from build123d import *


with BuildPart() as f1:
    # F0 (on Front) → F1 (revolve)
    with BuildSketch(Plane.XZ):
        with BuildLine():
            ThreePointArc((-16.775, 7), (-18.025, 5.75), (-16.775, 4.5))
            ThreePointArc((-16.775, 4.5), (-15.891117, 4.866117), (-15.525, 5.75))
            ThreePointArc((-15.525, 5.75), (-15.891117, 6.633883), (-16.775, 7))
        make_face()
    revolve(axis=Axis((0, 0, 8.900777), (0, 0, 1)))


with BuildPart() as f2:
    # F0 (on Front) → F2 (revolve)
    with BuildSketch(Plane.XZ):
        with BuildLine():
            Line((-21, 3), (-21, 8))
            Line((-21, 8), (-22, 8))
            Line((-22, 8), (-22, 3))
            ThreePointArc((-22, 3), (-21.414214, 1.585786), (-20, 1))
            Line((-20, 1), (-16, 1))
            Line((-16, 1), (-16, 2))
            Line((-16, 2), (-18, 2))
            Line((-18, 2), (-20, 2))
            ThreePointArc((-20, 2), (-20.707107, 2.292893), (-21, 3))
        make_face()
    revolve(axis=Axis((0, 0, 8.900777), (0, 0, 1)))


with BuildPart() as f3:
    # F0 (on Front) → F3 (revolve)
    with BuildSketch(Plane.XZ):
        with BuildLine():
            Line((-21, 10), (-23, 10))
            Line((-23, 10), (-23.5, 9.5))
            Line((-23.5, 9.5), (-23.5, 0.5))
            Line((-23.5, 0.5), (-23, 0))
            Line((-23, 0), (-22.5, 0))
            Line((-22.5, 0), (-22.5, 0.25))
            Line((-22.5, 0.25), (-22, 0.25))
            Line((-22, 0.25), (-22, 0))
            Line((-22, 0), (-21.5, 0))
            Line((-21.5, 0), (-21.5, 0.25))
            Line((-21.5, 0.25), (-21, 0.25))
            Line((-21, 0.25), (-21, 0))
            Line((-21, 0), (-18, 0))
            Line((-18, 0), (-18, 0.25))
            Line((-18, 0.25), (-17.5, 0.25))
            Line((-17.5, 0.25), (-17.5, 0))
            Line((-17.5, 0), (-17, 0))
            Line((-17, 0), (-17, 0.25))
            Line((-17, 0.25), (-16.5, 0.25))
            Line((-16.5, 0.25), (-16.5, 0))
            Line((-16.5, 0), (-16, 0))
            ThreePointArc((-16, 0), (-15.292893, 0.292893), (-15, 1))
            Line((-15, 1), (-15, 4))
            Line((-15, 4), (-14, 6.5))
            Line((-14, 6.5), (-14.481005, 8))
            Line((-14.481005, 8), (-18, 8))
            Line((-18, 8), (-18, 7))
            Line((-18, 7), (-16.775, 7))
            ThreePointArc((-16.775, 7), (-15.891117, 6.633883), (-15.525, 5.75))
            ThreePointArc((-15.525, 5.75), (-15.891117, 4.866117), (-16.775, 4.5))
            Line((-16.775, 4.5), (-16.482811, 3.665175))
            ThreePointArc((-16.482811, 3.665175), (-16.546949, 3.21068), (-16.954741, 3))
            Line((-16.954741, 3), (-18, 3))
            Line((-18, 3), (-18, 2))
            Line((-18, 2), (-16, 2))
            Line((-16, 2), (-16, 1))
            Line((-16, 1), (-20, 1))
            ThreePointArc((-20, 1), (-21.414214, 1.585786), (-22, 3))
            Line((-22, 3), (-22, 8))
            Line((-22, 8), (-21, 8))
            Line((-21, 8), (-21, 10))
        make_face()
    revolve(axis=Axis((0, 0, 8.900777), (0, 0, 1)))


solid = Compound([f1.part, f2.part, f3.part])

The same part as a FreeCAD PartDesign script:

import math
import FreeCAD as App
import Part
import Sketcher

V = App.Vector
Q = App.Units.Quantity

doc = App.newDocument("Part")
body = doc.addObject("PartDesign::Body", "Body")

# Sketch on XZ plane
sketch1 = body.newObject("Sketcher::SketchObject", "Sketch")
sketch1.AttachmentSupport = (doc.getObject("XZ_Plane"), [""])
sketch1.MapMode = "FlatFace"
sketch1.addGeometry([
    Part.ArcOfCircle(Part.Circle(V(-16.8, 5.8, 0), V(0, 0, 1), 1.2), math.radians(90), math.radians(270)),
    Part.ArcOfCircle(Part.Circle(V(-16.8, 5.8, 0), V(0, 0, 1), 1.3), math.radians(-90), math.radians(0)),
    Part.ArcOfCircle(Part.Circle(V(-16.8, 5.7, 0), V(0, 0, 1), 1.3), math.radians(0), math.radians(90)),
], False)
sketch1.addConstraint([
    Sketcher.Constraint("Tangent", 0, 2, 1, 1),
    Sketcher.Constraint("Coincident", 1, 2, 2, 1),
    Sketcher.Constraint("Tangent", 2, 2, 0, 1),
    Sketcher.Constraint("Equal", 0, 1),
    Sketcher.Constraint("Horizontal", 2, 3, 1, 2),
    Sketcher.Constraint("Vertical", 2, 3, 0, 2),
    Sketcher.Constraint("Vertical", 0, 2, 2, 2),
    Sketcher.Constraint("Radius", 0, Q("1.25 mm")),
    Sketcher.Constraint("DistanceY", -1, 1, 2, 2, Q("7 mm")),
    Sketcher.Constraint("DistanceX", 0, 3, -1, 1, Q("16.775 mm")),
])
revolution = body.newObject("PartDesign::Revolution", "Revolution")
revolution.Profile = sketch1
revolution.ReferenceAxis = (sketch1, ["V_Axis"])
revolution.Angle = 360
body2 = doc.addObject("PartDesign::Body", "Body001")

# Sketch on XZ plane
sketch2 = body2.newObject("Sketcher::SketchObject", "Sketch001")
sketch2.AttachmentSupport = (doc.getObject("XZ_Plane001"), [""])
sketch2.MapMode = "FlatFace"
sketch2.addGeometry([
    Part.LineSegment(V(-21, 3, 0), V(-21, 8, 0)),  # 0
    Part.LineSegment(V(-21, 8, 0), V(-22, 8, 0)),  # 1
    Part.LineSegment(V(-22, 8, 0), V(-22, 3, 0)),  # 2
    Part.ArcOfCircle(Part.Circle(V(-20, 3, 0), V(0, 0, 1), 2), math.radians(180), math.radians(270)),  # 3
    Part.LineSegment(V(-20, 1, 0), V(-16, 1, 0)),  # 4
    Part.LineSegment(V(-16, 1, 0), V(-16, 2, 0)),  # 5
    Part.LineSegment(V(-16, 2, 0), V(-20, 2, 0)),  # 6
    Part.ArcOfCircle(Part.Circle(V(-20, 3, 0), V(0, 0, 1), 1), math.radians(180), math.radians(270)),  # 7
], False)
sketch2.addConstraint([
    Sketcher.Constraint("Coincident", 0, 2, 1, 1),
    Sketcher.Constraint("Coincident", 1, 2, 2, 1),
    Sketcher.Constraint("Tangent", 2, 2, 3, 1),
    Sketcher.Constraint("Tangent", 3, 2, 4, 1),
    Sketcher.Constraint("Coincident", 4, 2, 5, 1),
    Sketcher.Constraint("Coincident", 5, 2, 6, 1),
    Sketcher.Constraint("Tangent", 6, 2, 7, 2),
    Sketcher.Constraint("Tangent", 7, 1, 0, 1),
    Sketcher.Constraint("Vertical", 0),
    Sketcher.Constraint("Horizontal", 1),
    Sketcher.Constraint("Vertical", 2),
    Sketcher.Constraint("Horizontal", 4),
    Sketcher.Constraint("Vertical", 5),
    Sketcher.Constraint("Horizontal", 6),
    Sketcher.Constraint("Coincident", 7, 3, 3, 3),
    Sketcher.Constraint("Radius", 3, Q("1.999999 mm")),
    Sketcher.Constraint("Radius", 7, Q("0.999999 mm")),
    Sketcher.Constraint("DistanceX", 4, 1, 4, 2, Q("4 mm")),
    Sketcher.Constraint("DistanceY", 0, 1, 0, 2, Q("5 mm")),
    Sketcher.Constraint("DistanceX", 3, 3, -1, 1, Q("20.000001 mm")),
    Sketcher.Constraint("DistanceY", -1, 1, 3, 3, Q("2.999999 mm")),
])
revolution2 = body2.newObject("PartDesign::Revolution", "Revolution001")
revolution2.Profile = sketch2
revolution2.ReferenceAxis = (sketch2, ["V_Axis"])
revolution2.Angle = 360
body3 = doc.addObject("PartDesign::Body", "Body002")

# Sketch on XZ plane
sketch3 = body3.newObject("Sketcher::SketchObject", "Sketch002")
sketch3.AttachmentSupport = (doc.getObject("XZ_Plane002"), [""])
sketch3.MapMode = "FlatFace"
sketch3.addGeometry([
    Part.LineSegment(V(-21, 10, 0), V(-23, 10, 0)),  # 0
    Part.LineSegment(V(-23, 10, 0), V(-23.5, 9.5, 0)),  # 1
    Part.LineSegment(V(-23.5, 9.5, 0), V(-23.5, 0.5, 0)),  # 2
    Part.LineSegment(V(-23.5, 0.5, 0), V(-23, 0, 0)),  # 3
    Part.LineSegment(V(-23, 0, 0), V(-22.5, 0, 0)),  # 4
    Part.LineSegment(V(-22.5, 0, 0), V(-22.5, 0.25, 0)),  # 5
    Part.LineSegment(V(-22.5, 0.25, 0), V(-22, 0.25, 0)),  # 6
    Part.LineSegment(V(-22, 0.25, 0), V(-22, 0, 0)),  # 7
    Part.LineSegment(V(-22, 0, 0), V(-21.5, 0, 0)),  # 8
    Part.LineSegment(V(-21.5, 0, 0), V(-21.5, 0.25, 0)),  # 9
    Part.LineSegment(V(-21.5, 0.25, 0), V(-21, 0.25, 0)),  # 10
    Part.LineSegment(V(-21, 0.25, 0), V(-21, 0, 0)),  # 11
    Part.LineSegment(V(-21, 0, 0), V(-18, 0, 0)),  # 12
    Part.LineSegment(V(-18, 0, 0), V(-18, 0.25, 0)),  # 13
    Part.LineSegment(V(-18, 0.25, 0), V(-17.5, 0.25, 0)),  # 14
    Part.LineSegment(V(-17.5, 0.25, 0), V(-17.5, 0, 0)),  # 15
    Part.LineSegment(V(-17.5, 0, 0), V(-17, 0, 0)),  # 16
    Part.LineSegment(V(-17, 0, 0), V(-17, 0.25, 0)),  # 17
    Part.LineSegment(V(-17, 0.25, 0), V(-16.5, 0.25, 0)),  # 18
    Part.LineSegment(V(-16.5, 0.25, 0), V(-16.5, 0, 0)),  # 19
    Part.LineSegment(V(-16.5, 0, 0), V(-16, 0, 0)),  # 20
    Part.ArcOfCircle(Part.Circle(V(-16, 1, 0), V(0, 0, 1), 1), math.radians(-90), math.radians(0)),  # 21
    Part.LineSegment(V(-15, 1, 0), V(-15, 4, 0)),  # 22
    Part.LineSegment(V(-15, 4, 0), V(-14, 6.5, 0)),  # 23
    Part.LineSegment(V(-14, 6.5, 0), V(-14.48, 8, 0)),  # 24
    Part.LineSegment(V(-14.48, 8, 0), V(-18, 8, 0)),  # 25
    Part.LineSegment(V(-18, 8, 0), V(-18, 7, 0)),  # 26
    Part.LineSegment(V(-18, 7, 0), V(-16.77, 7, 0)),  # 27
    Part.ArcOfCircle(Part.Circle(V(-16.78, 5.75, 0), V(0, 0, 1), 1.25), math.radians(0), math.radians(90)),  # 28
    Part.ArcOfCircle(Part.Circle(V(-16.78, 5.75, 0), V(0, 0, 1), 1.25), math.radians(-90), math.radians(0)),  # 29
    Part.LineSegment(V(-16.77, 4.5, 0), V(-16.48, 3.67, 0)),  # 30
    Part.ArcOfCircle(Part.Circle(V(-16.95, 3.5, 0), V(0, 0, 1), 0.5), math.radians(-90), math.radians(19)),  # 31
    Part.LineSegment(V(-16.95, 3, 0), V(-18, 3, 0)),  # 32
    Part.LineSegment(V(-18, 3, 0), V(-18, 2, 0)),  # 33
    Part.LineSegment(V(-18, 2, 0), V(-16, 2, 0)),  # 34
    Part.LineSegment(V(-16, 2, 0), V(-16, 1, 0)),  # 35
    Part.LineSegment(V(-16, 1, 0), V(-20, 1, 0)),  # 36
    Part.ArcOfCircle(Part.Circle(V(-20, 3, 0), V(0, 0, 1), 2), math.radians(180), math.radians(270)),  # 37
    Part.LineSegment(V(-22, 3, 0), V(-22, 8, 0)),  # 38
    Part.LineSegment(V(-22, 8, 0), V(-21, 8, 0)),  # 39
    Part.LineSegment(V(-21, 8, 0), V(-21, 10, 0)),  # 40
], False)
sketch3.addConstraint([
    Sketcher.Constraint("Coincident", 0, 2, 1, 1),
    Sketcher.Constraint("Coincident", 1, 2, 2, 1),
    Sketcher.Constraint("Coincident", 2, 2, 3, 1),
    Sketcher.Constraint("Coincident", 3, 2, 4, 1),
    Sketcher.Constraint("Coincident", 4, 2, 5, 1),
    Sketcher.Constraint("Coincident", 5, 2, 6, 1),
    Sketcher.Constraint("Coincident", 6, 2, 7, 1),
    Sketcher.Constraint("Coincident", 7, 2, 8, 1),
    Sketcher.Constraint("Coincident", 8, 2, 9, 1),
    Sketcher.Constraint("Coincident", 9, 2, 10, 1),
    Sketcher.Constraint("Coincident", 10, 2, 11, 1),
    Sketcher.Constraint("Coincident", 11, 2, 12, 1),
    Sketcher.Constraint("Coincident", 12, 2, 13, 1),
    Sketcher.Constraint("Coincident", 13, 2, 14, 1),
    Sketcher.Constraint("Coincident", 14, 2, 15, 1),
    Sketcher.Constraint("Coincident", 15, 2, 16, 1),
    Sketcher.Constraint("Coincident", 16, 2, 17, 1),
    Sketcher.Constraint("Coincident", 17, 2, 18, 1),
    Sketcher.Constraint("Coincident", 18, 2, 19, 1),
    Sketcher.Constraint("Coincident", 19, 2, 20, 1),
    Sketcher.Constraint("Tangent", 20, 2, 21, 1),
    Sketcher.Constraint("Tangent", 21, 2, 22, 1),
    Sketcher.Constraint("Coincident", 22, 2, 23, 1),
    Sketcher.Constraint("Coincident", 23, 2, 24, 1),
    Sketcher.Constraint("Coincident", 24, 2, 25, 1),
    Sketcher.Constraint("Coincident", 25, 2, 26, 1),
    Sketcher.Constraint("Coincident", 26, 2, 27, 1),
    Sketcher.Constraint("Tangent", 27, 2, 28, 2),
    Sketcher.Constraint("Coincident", 28, 1, 29, 2),
    Sketcher.Constraint("Coincident", 29, 1, 30, 1),
    Sketcher.Constraint("Tangent", 30, 2, 31, 2),
    Sketcher.Constraint("Tangent", 31, 1, 32, 1),
    Sketcher.Constraint("Coincident", 32, 2, 33, 1),
    Sketcher.Constraint("Coincident", 33, 2, 34, 1),
    Sketcher.Constraint("Coincident", 34, 2, 35, 1),
    Sketcher.Constraint("Coincident", 35, 2, 36, 1),
    Sketcher.Constraint("Tangent", 36, 2, 37, 2),
    Sketcher.Constraint("Tangent", 37, 1, 38, 1),
    Sketcher.Constraint("Coincident", 38, 2, 39, 1),
    Sketcher.Constraint("Coincident", 39, 2, 40, 1),
    Sketcher.Constraint("Coincident", 40, 2, 0, 1),
    Sketcher.Constraint("Horizontal", 0),
    Sketcher.Constraint("Vertical", 2),
    Sketcher.Constraint("Horizontal", 4),
    Sketcher.Constraint("Vertical", 5),
    Sketcher.Constraint("Horizontal", 6),
    Sketcher.Constraint("Vertical", 7),
    Sketcher.Constraint("Horizontal", 8),
    Sketcher.Constraint("Vertical", 9),
    Sketcher.Constraint("Horizontal", 10),
    Sketcher.Constraint("Vertical", 11),
    Sketcher.Constraint("Horizontal", 12),
    Sketcher.Constraint("Vertical", 13),
    Sketcher.Constraint("Horizontal", 14),
    Sketcher.Constraint("Vertical", 15),
    Sketcher.Constraint("Horizontal", 16),
    Sketcher.Constraint("Vertical", 17),
    Sketcher.Constraint("Horizontal", 18),
    Sketcher.Constraint("Vertical", 19),
    Sketcher.Constraint("Horizontal", 20),
    Sketcher.Constraint("Vertical", 22),
    Sketcher.Constraint("Horizontal", 25),
    Sketcher.Constraint("Vertical", 26),
    Sketcher.Constraint("Horizontal", 27),
    Sketcher.Constraint("Horizontal", 32),
    Sketcher.Constraint("Vertical", 33),
    Sketcher.Constraint("Horizontal", 34),
    Sketcher.Constraint("Vertical", 35),
    Sketcher.Constraint("Horizontal", 36),
    Sketcher.Constraint("Vertical", 38),
    Sketcher.Constraint("Horizontal", 39),
    Sketcher.Constraint("Vertical", 40),
    Sketcher.Constraint("Coincident", 29, 3, 28, 3),
    Sketcher.Constraint("Coincident", 35, 2, 21, 3),
    Sketcher.Constraint("PointOnObject", 3, 2, -1),
    Sketcher.Constraint("PointOnObject", 7, 2, -1),
    Sketcher.Constraint("PointOnObject", 11, 2, -1),
    Sketcher.Constraint("PointOnObject", 15, 2, -1),
    Sketcher.Constraint("PointOnObject", 19, 2, -1),
    Sketcher.Constraint("Perpendicular", 1, 3),
    Sketcher.Constraint("Horizontal", 6, 2, 9, 2),
    Sketcher.Constraint("Horizontal", 10, 2, 13, 2),
    Sketcher.Constraint("Horizontal", 14, 2, 17, 2),
    Sketcher.Constraint("Horizontal", 29, 3, 28, 1),
    Sketcher.Constraint("Horizontal", 37, 3, 31, 1),
    Sketcher.Constraint("Horizontal", 25, 2, 38, 2),
    Sketcher.Constraint("Vertical", 0, 2, 3, 2),
    Sketcher.Constraint("Vertical", 13, 2, 25, 2),
    Sketcher.Constraint("Vertical", 27, 2, 29, 1),
    Sketcher.Constraint("Vertical", 26, 2, 32, 2),
    Sketcher.Constraint("Vertical", 7, 2, 37, 1),
    Sketcher.Constraint("Vertical", 11, 2, 39, 2),
    Sketcher.Constraint("Equal", 4, 6),
    Sketcher.Constraint("Equal", 6, 8),
    Sketcher.Constraint("Equal", 8, 10),
    Sketcher.Constraint("Equal", 10, 14),
    Sketcher.Constraint("Equal", 14, 16),
    Sketcher.Constraint("Equal", 16, 18),
    Sketcher.Constraint("Equal", 18, 20),
    Sketcher.Constraint("Equal", 12, 22),
    Sketcher.Constraint("Equal", 39, 26),
    Sketcher.Constraint("Equal", 26, 33),
    Sketcher.Constraint("Equal", 33, 35),
    Sketcher.Constraint("Equal", 34, 40),
    Sketcher.Constraint("Equal", 1, 3),
    Sketcher.Constraint("Radius", 21, Q("0.999999 mm")),
    Sketcher.Constraint("Radius", 37, Q("1.999999 mm")),
    Sketcher.Constraint("Radius", 31, Q("0.5 mm")),
    Sketcher.Constraint("DistanceX", 12, 1, 12, 2, Q("3 mm")),
    Sketcher.Constraint("DistanceY", 2, 2, 2, 1, Q("9 mm")),
    Sketcher.Constraint("DistanceY", 38, 1, 38, 2, Q("5 mm")),
    Sketcher.Constraint("Radius", 28, Q("1.250002 mm")),
    Sketcher.Constraint("DistanceX", 21, 3, -1, 1, Q("15.999999 mm")),
    Sketcher.Constraint("DistanceX", 23, 2, -1, 1, Q("14 mm")),
    Sketcher.Constraint("DistanceY", 31, 3, 23, 2, Q("3 mm")),
    Sketcher.Constraint("DistanceY", 5, 1, 5, 2, Q("0.25 mm")),
    Sketcher.Constraint("DistanceX", 27, 1, 27, 2, Q("1.225 mm")),
    Sketcher.Constraint("DistanceX", 32, 2, 32, 1, Q("1.045259 mm")),
    Sketcher.Constraint("DistanceX", 25, 2, 25, 1, Q("3.518995 mm")),
])
revolution3 = body3.newObject("PartDesign::Revolution", "Revolution002")
revolution3.Profile = sketch3
revolution3.ReferenceAxis = (sketch3, ["V_Axis"])
revolution3.Angle = 360

doc.recompute()
